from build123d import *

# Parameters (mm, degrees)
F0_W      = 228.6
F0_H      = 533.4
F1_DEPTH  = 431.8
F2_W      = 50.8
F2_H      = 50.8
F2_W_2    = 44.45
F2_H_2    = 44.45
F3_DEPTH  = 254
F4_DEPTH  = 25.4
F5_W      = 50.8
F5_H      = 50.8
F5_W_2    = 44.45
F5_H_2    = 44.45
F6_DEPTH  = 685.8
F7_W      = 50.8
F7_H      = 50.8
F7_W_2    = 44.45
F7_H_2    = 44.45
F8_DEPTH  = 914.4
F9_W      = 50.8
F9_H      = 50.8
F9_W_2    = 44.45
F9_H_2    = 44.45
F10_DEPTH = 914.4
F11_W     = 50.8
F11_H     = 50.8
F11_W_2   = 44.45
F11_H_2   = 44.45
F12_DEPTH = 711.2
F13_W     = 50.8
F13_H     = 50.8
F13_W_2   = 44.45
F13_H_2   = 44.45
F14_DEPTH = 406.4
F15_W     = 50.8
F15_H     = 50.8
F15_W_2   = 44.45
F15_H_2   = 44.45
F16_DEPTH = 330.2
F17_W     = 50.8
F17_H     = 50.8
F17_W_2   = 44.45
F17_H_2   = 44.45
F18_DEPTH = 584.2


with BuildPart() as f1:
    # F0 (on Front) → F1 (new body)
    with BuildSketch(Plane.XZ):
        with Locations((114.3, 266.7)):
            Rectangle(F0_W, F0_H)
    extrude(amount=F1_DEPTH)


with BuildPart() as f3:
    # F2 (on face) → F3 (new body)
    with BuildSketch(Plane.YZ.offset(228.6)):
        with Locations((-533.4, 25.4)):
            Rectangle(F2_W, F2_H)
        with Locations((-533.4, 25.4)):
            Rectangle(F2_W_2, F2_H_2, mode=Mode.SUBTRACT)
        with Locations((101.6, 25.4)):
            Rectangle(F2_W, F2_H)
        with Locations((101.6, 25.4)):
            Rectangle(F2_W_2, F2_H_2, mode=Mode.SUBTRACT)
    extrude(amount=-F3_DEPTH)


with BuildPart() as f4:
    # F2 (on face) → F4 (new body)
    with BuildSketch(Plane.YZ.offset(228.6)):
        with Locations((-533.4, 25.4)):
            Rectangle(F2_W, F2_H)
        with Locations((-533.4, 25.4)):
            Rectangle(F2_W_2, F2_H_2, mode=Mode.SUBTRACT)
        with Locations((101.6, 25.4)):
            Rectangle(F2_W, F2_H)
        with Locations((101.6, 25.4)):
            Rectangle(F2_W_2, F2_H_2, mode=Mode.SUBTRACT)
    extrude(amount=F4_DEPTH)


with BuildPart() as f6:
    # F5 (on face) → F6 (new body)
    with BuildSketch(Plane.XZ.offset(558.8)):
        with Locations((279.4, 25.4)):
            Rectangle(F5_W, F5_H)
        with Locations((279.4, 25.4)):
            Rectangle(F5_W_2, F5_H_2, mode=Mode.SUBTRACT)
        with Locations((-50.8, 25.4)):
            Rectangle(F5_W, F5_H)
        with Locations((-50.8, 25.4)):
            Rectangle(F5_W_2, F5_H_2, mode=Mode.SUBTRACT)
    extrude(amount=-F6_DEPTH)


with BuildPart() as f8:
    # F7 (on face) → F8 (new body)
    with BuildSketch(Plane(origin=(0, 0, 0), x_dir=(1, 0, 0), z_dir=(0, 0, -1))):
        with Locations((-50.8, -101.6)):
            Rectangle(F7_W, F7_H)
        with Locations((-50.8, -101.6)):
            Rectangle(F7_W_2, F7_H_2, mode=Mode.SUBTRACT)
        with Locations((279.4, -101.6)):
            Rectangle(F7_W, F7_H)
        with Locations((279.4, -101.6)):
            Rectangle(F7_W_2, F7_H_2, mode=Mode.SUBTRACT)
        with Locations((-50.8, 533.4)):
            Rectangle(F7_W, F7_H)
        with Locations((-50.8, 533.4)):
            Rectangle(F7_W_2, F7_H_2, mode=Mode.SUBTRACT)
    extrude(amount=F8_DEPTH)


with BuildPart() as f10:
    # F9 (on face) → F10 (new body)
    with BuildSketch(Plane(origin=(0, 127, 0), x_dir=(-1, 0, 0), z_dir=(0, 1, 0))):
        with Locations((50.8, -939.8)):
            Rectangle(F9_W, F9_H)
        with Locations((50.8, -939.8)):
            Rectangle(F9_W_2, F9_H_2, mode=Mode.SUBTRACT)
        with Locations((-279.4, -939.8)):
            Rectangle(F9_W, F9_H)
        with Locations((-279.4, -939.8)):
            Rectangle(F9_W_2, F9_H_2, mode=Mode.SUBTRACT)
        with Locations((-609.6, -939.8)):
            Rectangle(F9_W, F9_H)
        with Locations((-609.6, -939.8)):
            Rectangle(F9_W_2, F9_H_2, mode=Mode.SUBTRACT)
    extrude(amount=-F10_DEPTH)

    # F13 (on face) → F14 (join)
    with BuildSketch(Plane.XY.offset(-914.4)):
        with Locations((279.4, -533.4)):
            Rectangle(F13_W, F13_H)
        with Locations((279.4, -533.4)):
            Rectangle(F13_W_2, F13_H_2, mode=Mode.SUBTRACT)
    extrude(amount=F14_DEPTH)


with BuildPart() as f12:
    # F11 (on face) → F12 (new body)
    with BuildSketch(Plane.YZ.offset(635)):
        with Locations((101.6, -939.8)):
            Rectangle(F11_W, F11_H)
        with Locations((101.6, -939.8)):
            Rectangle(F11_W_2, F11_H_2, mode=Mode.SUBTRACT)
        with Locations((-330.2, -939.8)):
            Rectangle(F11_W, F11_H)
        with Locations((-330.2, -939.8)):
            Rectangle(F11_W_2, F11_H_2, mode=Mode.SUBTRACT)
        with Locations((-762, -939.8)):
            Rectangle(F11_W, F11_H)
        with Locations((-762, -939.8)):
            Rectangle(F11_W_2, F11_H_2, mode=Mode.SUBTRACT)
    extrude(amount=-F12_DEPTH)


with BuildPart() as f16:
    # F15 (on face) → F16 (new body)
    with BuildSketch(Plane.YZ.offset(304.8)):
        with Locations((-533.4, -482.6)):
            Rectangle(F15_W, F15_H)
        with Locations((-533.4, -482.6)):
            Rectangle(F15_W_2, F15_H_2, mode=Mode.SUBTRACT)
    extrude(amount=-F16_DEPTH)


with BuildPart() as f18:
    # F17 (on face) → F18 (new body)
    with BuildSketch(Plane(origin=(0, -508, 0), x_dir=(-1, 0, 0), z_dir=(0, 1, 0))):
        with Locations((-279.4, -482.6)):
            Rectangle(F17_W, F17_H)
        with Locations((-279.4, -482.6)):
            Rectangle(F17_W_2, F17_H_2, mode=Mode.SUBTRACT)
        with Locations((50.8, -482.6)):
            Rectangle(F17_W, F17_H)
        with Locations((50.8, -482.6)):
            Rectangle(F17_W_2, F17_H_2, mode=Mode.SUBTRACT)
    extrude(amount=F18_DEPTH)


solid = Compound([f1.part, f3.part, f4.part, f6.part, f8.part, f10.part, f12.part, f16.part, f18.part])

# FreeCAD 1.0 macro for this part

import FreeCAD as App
import Part
import Sketcher
Q = App.Units.Quantity


def add_polygon(sketch, points):
    """Adds a closed chain of lines whose ends are joined by coincident constraints."""
    first, n = sketch.GeometryCount, len(points)
    for a, b in zip(points, points[1:] + points[:1]):
        sketch.addGeometry(Part.LineSegment(App.Vector(*a, 0), App.Vector(*b, 0)), False)
    for i in range(n):
        sketch.addConstraint(Sketcher.Constraint("Coincident", first + i, 2, first + (i + 1) % n, 1))

doc = App.newDocument("Part")
params = doc.addObject("Spreadsheet::Sheet", "Params")
for row, (alias, value) in enumerate([
    ("sketch1_width", "9 in"),
    ("sketch1_height", "21 in"),
    ("pad1_length", "17 in"),
    ("sketch2_width", "2 in"),
    ("sketch2_width2", "1.75 in"),
    ("pad2_length", "10 in"),
    ("sketch3_width", "2 in"),
    ("sketch3_width2", "1.75 in"),
    ("pad3_length", "1 in"),
    ("sketch4_width", "2 in"),
    ("sketch4_width2", "1.75 in"),
    ("pad4_length", "27 in"),
    ("sketch5_width", "2 in"),
    ("sketch5_width2", "1.75 in"),
    ("pad5_length", "36 in"),
    ("sketch6_width", "2 in"),
    ("sketch6_width2", "1.75 in"),
    ("pad6_length", "36 in"),
    ("sketch7_width", "2 in"),
    ("sketch7_width2", "1.75 in"),
    ("pad7_length", "16 in"),
    ("sketch8_width", "2 in"),
    ("sketch8_width2", "1.75 in"),
    ("pad8_length", "28 in"),
    ("sketch9_width", "2 in"),
    ("sketch9_width2", "1.75 in"),
    ("pad9_length", "13 in"),
    ("sketch10_width", "2 in"),
    ("sketch10_width2", "1.75 in"),
    ("pad10_length", "23 in"),
], start=1):
    params.set(f"A{row}", alias)
    params.set(f"B{row}", "=" + value)
    params.setAlias(f"B{row}", alias)

body = doc.addObject("PartDesign::Body", "Body")

sketch1 = body.newObject("Sketcher::SketchObject", "Sketch")
sketch1.AttachmentSupport = (doc.getObject("XZ_Plane"), [""])
sketch1.MapMode = "FlatFace"
add_polygon(sketch1, [(0, 533), (0, 0), (229, 0), (229, 533)])
sketch1.addConstraint(Sketcher.Constraint("Vertical", 0))
sketch1.addConstraint(Sketcher.Constraint("Horizontal", 1))
sketch1.addConstraint(Sketcher.Constraint("Vertical", 2))
sketch1.addConstraint(Sketcher.Constraint("Horizontal", 3))
sketch1.addConstraint(Sketcher.Constraint("Coincident", 0, 2, -1, 1))
sketch1.addConstraint(Sketcher.Constraint("DistanceX", 1, 1, 1, 2, Q("9 in")))
sketch1.addConstraint(Sketcher.Constraint("DistanceY", 0, 2, 0, 1, Q("21 in")))
sketch1.setExpression("Constraints[9]", "Params.sketch1_width")
sketch1.setExpression("Constraints[10]", "Params.sketch1_height")
pad1 = body.newObject("PartDesign::Pad", "Pad")
pad1.Profile = sketch1
pad1.setExpression("Length", "Params.pad1_length")
body2 = doc.addObject("PartDesign::Body", "Body001")
body2.AllowCompound = True

sketch2 = body2.newObject("Sketcher::SketchObject", "Sketch001")
sketch2.AttachmentSupport = (doc.getObject("YZ_Plane001"), [""])
sketch2.MapMode = "FlatFace"
sketch2.AttachmentOffset = App.Placement(App.Vector(0, 0, 9 * 25.4), App.Rotation())
add_polygon(sketch2, [(-559, 51), (-559, 0), (-508, 0), (-508, 51)])
add_polygon(sketch2, [(-511, 3), (-556, 3), (-556, 48), (-511, 48)])
add_polygon(sketch2, [(76, 51), (76, 0), (127, 0), (127, 51)])
add_polygon(sketch2, [(124, 3), (79, 3), (79, 48), (124, 48)])
sketch2.addConstraint(Sketcher.Constraint("Vertical", 0))
sketch2.addConstraint(Sketcher.Constraint("Horizontal", 1))
sketch2.addConstraint(Sketcher.Constraint("Vertical", 2))
sketch2.addConstraint(Sketcher.Constraint("Horizontal", 3))
sketch2.addConstraint(Sketcher.Constraint("Horizontal", 4))
sketch2.addConstraint(Sketcher.Constraint("Vertical", 5))
sketch2.addConstraint(Sketcher.Constraint("Horizontal", 6))
sketch2.addConstraint(Sketcher.Constraint("Vertical", 7))
sketch2.addConstraint(Sketcher.Constraint("Vertical", 8))
sketch2.addConstraint(Sketcher.Constraint("Horizontal", 9))
sketch2.addConstraint(Sketcher.Constraint("Vertical", 10))
sketch2.addConstraint(Sketcher.Constraint("Horizontal", 11))
sketch2.addConstraint(Sketcher.Constraint("Horizontal", 12))
sketch2.addConstraint(Sketcher.Constraint("Vertical", 13))
sketch2.addConstraint(Sketcher.Constraint("Horizontal", 14))
sketch2.addConstraint(Sketcher.Constraint("Vertical", 15))
sketch2.addConstraint(Sketcher.Constraint("PointOnObject", 0, 2, -1))
sketch2.addConstraint(Sketcher.Constraint("PointOnObject", 8, 2, -1))
sketch2.addConstraint(Sketcher.Constraint("Horizontal", 3, 2, 10, 2))
sketch2.addConstraint(Sketcher.Constraint("Horizontal", 7, 2, 12, 2))
sketch2.addConstraint(Sketcher.Constraint("Horizontal", 6, 2, 13, 2))
sketch2.addConstraint(Sketcher.Constraint("Equal", 3, 9))
sketch2.addConstraint(Sketcher.Constraint("Equal", 6, 12))
sketch2.addConstraint(Sketcher.Constraint("Equal", 11, 0))
sketch2.addConstraint(Sketcher.Constraint("Equal", 14, 5))
sketch2.addConstraint(Sketcher.Constraint("DistanceX", 1, 1, 1, 2, Q("2 in")))
sketch2.addConstraint(Sketcher.Constraint("DistanceX", 0, 2, -1, 1, Q("22 in")))
sketch2.addConstraint(Sketcher.Constraint("DistanceX", -1, 1, 8, 2, Q("3 in")))
sketch2.addConstraint(Sketcher.Constraint("DistanceX", 4, 2, 4, 1, Q("1.75 in")))
sketch2.addConstraint(Sketcher.Constraint("DistanceX", 4, 2, -1, 1, Q("21.875 in")))
sketch2.addConstraint(Sketcher.Constraint("DistanceY", -1, 1, 4, 2, Q("0.125 in")))
sketch2.addConstraint(Sketcher.Constraint("DistanceX", -1, 1, 12, 2, Q("3.125 in")))
sketch2.setExpression("Constraints[41]", "Params.sketch2_width")
sketch2.setExpression("Constraints[44]", "Params.sketch2_width2")
pad2 = body2.newObject("PartDesign::Pad", "Pad001")
pad2.Profile = sketch2
pad2.setExpression("Length", "Params.pad2_length")
pad2.Reversed = True
body3 = doc.addObject("PartDesign::Body", "Body002")
body3.AllowCompound = True

sketch3 = body3.newObject("Sketcher::SketchObject", "Sketch002")
sketch3.AttachmentSupport = (doc.getObject("YZ_Plane002"), [""])
sketch3.MapMode = "FlatFace"
sketch3.AttachmentOffset = App.Placement(App.Vector(0, 0, 9 * 25.4), App.Rotation())
add_polygon(sketch3, [(-559, 51), (-559, 0), (-508, 0), (-508, 51)])
add_polygon(sketch3, [(-511, 3), (-556, 3), (-556, 48), (-511, 48)])
add_polygon(sketch3, [(76, 51), (76, 0), (127, 0), (127, 51)])
add_polygon(sketch3, [(124, 3), (79, 3), (79, 48), (124, 48)])
sketch3.addConstraint(Sketcher.Constraint("Vertical", 0))
sketch3.addConstraint(Sketcher.Constraint("Horizontal", 1))
sketch3.addConstraint(Sketcher.Constraint("Vertical", 2))
sketch3.addConstraint(Sketcher.Constraint("Horizontal", 3))
sketch3.addConstraint(Sketcher.Constraint("Horizontal", 4))
sketch3.addConstraint(Sketcher.Constraint("Vertical", 5))
sketch3.addConstraint(Sketcher.Constraint("Horizontal", 6))
sketch3.addConstraint(Sketcher.Constraint("Vertical", 7))
sketch3.addConstraint(Sketcher.Constraint("Vertical", 8))
sketch3.addConstraint(Sketcher.Constraint("Horizontal", 9))
sketch3.addConstraint(Sketcher.Constraint("Vertical", 10))
sketch3.addConstraint(Sketcher.Constraint("Horizontal", 11))
sketch3.addConstraint(Sketcher.Constraint("Horizontal", 12))
sketch3.addConstraint(Sketcher.Constraint("Vertical", 13))
sketch3.addConstraint(Sketcher.Constraint("Horizontal", 14))
sketch3.addConstraint(Sketcher.Constraint("Vertical", 15))
sketch3.addConstraint(Sketcher.Constraint("PointOnObject", 0, 2, -1))
sketch3.addConstraint(Sketcher.Constraint("PointOnObject", 8, 2, -1))
sketch3.addConstraint(Sketcher.Constraint("Horizontal", 3, 2, 10, 2))
sketch3.addConstraint(Sketcher.Constraint("Horizontal", 7, 2, 12, 2))
sketch3.addConstraint(Sketcher.Constraint("Horizontal", 6, 2, 13, 2))
sketch3.addConstraint(Sketcher.Constraint("Equal", 3, 9))
sketch3.addConstraint(Sketcher.Constraint("Equal", 6, 12))
sketch3.addConstraint(Sketcher.Constraint("Equal", 11, 0))
sketch3.addConstraint(Sketcher.Constraint("Equal", 14, 5))
sketch3.addConstraint(Sketcher.Constraint("DistanceX", 1, 1, 1, 2, Q("2 in")))
sketch3.addConstraint(Sketcher.Constraint("DistanceX", 0, 2, -1, 1, Q("22 in")))
sketch3.addConstraint(Sketcher.Constraint("DistanceX", -1, 1, 8, 2, Q("3 in")))
sketch3.addConstraint(Sketcher.Constraint("DistanceX", 4, 2, 4, 1, Q("1.75 in")))
sketch3.addConstraint(Sketcher.Constraint("DistanceX", 4, 2, -1, 1, Q("21.875 in")))
sketch3.addConstraint(Sketcher.Constraint("DistanceY", -1, 1, 4, 2, Q("0.125 in")))
sketch3.addConstraint(Sketcher.Constraint("DistanceX", -1, 1, 12, 2, Q("3.125 in")))
sketch3.setExpression("Constraints[41]", "Params.sketch3_width")
sketch3.setExpression("Constraints[44]", "Params.sketch3_width2")
pad3 = body3.newObject("PartDesign::Pad", "Pad002")
pad3.Profile = sketch3
pad3.setExpression("Length", "Params.pad3_length")
body4 = doc.addObject("PartDesign::Body", "Body003")
body4.AllowCompound = True

sketch4 = body4.newObject("Sketcher::SketchObject", "Sketch003")
sketch4.AttachmentSupport = (doc.getObject("XZ_Plane003"), [""])
sketch4.MapMode = "FlatFace"
sketch4.AttachmentOffset = App.Placement(App.Vector(0, 0, 22 * 25.4), App.Rotation())
add_polygon(sketch4, [(254, 51), (254, 0), (305, 0), (305, 51)])
add_polygon(sketch4, [(302, 3), (257, 3), (257, 48), (302, 48)])
add_polygon(sketch4, [(-76, 51), (-76, 0), (-25, 0), (-25, 51)])
add_polygon(sketch4, [(-29, 3), (-73, 3), (-73, 48), (-29, 48)])
sketch4.addConstraint(Sketcher.Constraint("Vertical", 0))
sketch4.addConstraint(Sketcher.Constraint("Horizontal", 1))
sketch4.addConstraint(Sketcher.Constraint("Vertical", 2))
sketch4.addConstraint(Sketcher.Constraint("Horizontal", 3))
sketch4.addConstraint(Sketcher.Constraint("Horizontal", 4))
sketch4.addConstraint(Sketcher.Constraint("Vertical", 5))
sketch4.addConstraint(Sketcher.Constraint("Horizontal", 6))
sketch4.addConstraint(Sketcher.Constraint("Vertical", 7))
sketch4.addConstraint(Sketcher.Constraint("Vertical", 8))
sketch4.addConstraint(Sketcher.Constraint("Horizontal", 9))
sketch4.addConstraint(Sketcher.Constraint("Vertical", 10))
sketch4.addConstraint(Sketcher.Constraint("Horizontal", 11))
sketch4.addConstraint(Sketcher.Constraint("Horizontal", 12))
sketch4.addConstraint(Sketcher.Constraint("Vertical", 13))
sketch4.addConstraint(Sketcher.Constraint("Horizontal", 14))
sketch4.addConstraint(Sketcher.Constraint("Vertical", 15))
sketch4.addConstraint(Sketcher.Constraint("PointOnObject", 0, 2, -1))
sketch4.addConstraint(Sketcher.Constraint("PointOnObject", 8, 2, -1))
sketch4.addConstraint(Sketcher.Constraint("Horizontal", 3, 2, 10, 2))
sketch4.addConstraint(Sketcher.Constraint("Horizontal", 7, 2, 12, 2))
sketch4.addConstraint(Sketcher.Constraint("Horizontal", 6, 2, 13, 2))
sketch4.addConstraint(Sketcher.Constraint("Equal", 3, 9))
sketch4.addConstraint(Sketcher.Constraint("Equal", 6, 12))
sketch4.addConstraint(Sketcher.Constraint("Equal", 11, 0))
sketch4.addConstraint(Sketcher.Constraint("Equal", 14, 5))
sketch4.addConstraint(Sketcher.Constraint("DistanceX", 1, 1, 1, 2, Q("2 in")))
sketch4.addConstraint(Sketcher.Constraint("DistanceX", -1, 1, 0, 2, Q("10 in")))
sketch4.addConstraint(Sketcher.Constraint("DistanceX", 8, 2, -1, 1, Q("3 in")))
sketch4.addConstraint(Sketcher.Constraint("DistanceX", 4, 2, 4, 1, Q("1.75 in")))
sketch4.addConstraint(Sketcher.Constraint("DistanceX", -1, 1, 4, 2, Q("10.125 in")))
sketch4.addConstraint(Sketcher.Constraint("DistanceY", -1, 1, 4, 2, Q("0.125 in")))
sketch4.addConstraint(Sketcher.Constraint("DistanceX", 12, 2, -1, 1, Q("2.875 in")))
sketch4.setExpression("Constraints[41]", "Params.sketch4_width")
sketch4.setExpression("Constraints[44]", "Params.sketch4_width2")
pad4 = body4.newObject("PartDesign::Pad", "Pad003")
pad4.Profile = sketch4
pad4.setExpression("Length", "Params.pad4_length")
pad4.Reversed = True
body5 = doc.addObject("PartDesign::Body", "Body004")
body5.AllowCompound = True

sketch5 = body5.newObject("Sketcher::SketchObject", "Sketch004")
sketch5.AttachmentSupport = (doc.getObject("XY_Plane004"), [""])
sketch5.MapMode = "FlatFace"
add_polygon(sketch5, [(-76, 76), (-76, 127), (-25, 127), (-25, 76)])
add_polygon(sketch5, [(-29, 124), (-73, 124), (-73, 79), (-29, 79)])
add_polygon(sketch5, [(254, 76), (254, 127), (305, 127), (305, 76)])
add_polygon(sketch5, [(302, 124), (257, 124), (257, 79), (302, 79)])
add_polygon(sketch5, [(-76, -559), (-76, -508), (-25, -508), (-25, -559)])
add_polygon(sketch5, [(-29, -511), (-73, -511), (-73, -556), (-29, -556)])
sketch5.addConstraint(Sketcher.Constraint("Vertical", 0))
sketch5.addConstraint(Sketcher.Constraint("Horizontal", 1))
sketch5.addConstraint(Sketcher.Constraint("Vertical", 2))
sketch5.addConstraint(Sketcher.Constraint("Horizontal", 3))
sketch5.addConstraint(Sketcher.Constraint("Horizontal", 4))
sketch5.addConstraint(Sketcher.Constraint("Vertical", 5))
sketch5.addConstraint(Sketcher.Constraint("Horizontal", 6))
sketch5.addConstraint(Sketcher.Constraint("Vertical", 7))
sketch5.addConstraint(Sketcher.Constraint("Vertical", 8))
sketch5.addConstraint(Sketcher.Constraint("Horizontal", 9))
sketch5.addConstraint(Sketcher.Constraint("Vertical", 10))
sketch5.addConstraint(Sketcher.Constraint("Horizontal", 11))
sketch5.addConstraint(Sketcher.Constraint("Horizontal", 12))
sketch5.addConstraint(Sketcher.Constraint("Vertical", 13))
sketch5.addConstraint(Sketcher.Constraint("Horizontal", 14))
sketch5.addConstraint(Sketcher.Constraint("Vertical", 15))
sketch5.addConstraint(Sketcher.Constraint("Vertical", 16))
sketch5.addConstraint(Sketcher.Constraint("Horizontal", 17))
sketch5.addConstraint(Sketcher.Constraint("Vertical", 18))
sketch5.addConstraint(Sketcher.Constraint("Horizontal", 19))
sketch5.addConstraint(Sketcher.Constraint("Horizontal", 20))
sketch5.addConstraint(Sketcher.Constraint("Vertical", 21))
sketch5.addConstraint(Sketcher.Constraint("Horizontal", 22))
sketch5.addConstraint(Sketcher.Constraint("Vertical", 23))
sketch5.addConstraint(Sketcher.Constraint("Horizontal", 1, 2, 8, 2))
sketch5.addConstraint(Sketcher.Constraint("Horizontal", 3, 2, 10, 2))
sketch5.addConstraint(Sketcher.Constraint("Horizontal", 7, 2, 12, 2))
sketch5.addConstraint(Sketcher.Constraint("Horizontal", 6, 2, 13, 2))
sketch5.addConstraint(Sketcher.Constraint("Vertical", 3, 2, 16, 2))
sketch5.addConstraint(Sketcher.Constraint("Vertical", 2, 2, 17, 2))
sketch5.addConstraint(Sketcher.Constraint("Vertical", 5, 2, 20, 2))
sketch5.addConstraint(Sketcher.Constraint("Vertical", 7, 2, 22, 2))
sketch5.addConstraint(Sketcher.Constraint("Equal", 3, 9))
sketch5.addConstraint(Sketcher.Constraint("Equal", 6, 12))
sketch5.addConstraint(Sketcher.Constraint("Equal", 19, 0))
sketch5.addConstraint(Sketcher.Constraint("Equal", 22, 5))
sketch5.addConstraint(Sketcher.Constraint("Equal", 10, 16))
sketch5.addConstraint(Sketcher.Constraint("Equal", 15, 21))
sketch5.addConstraint(Sketcher.Constraint("DistanceX", 1, 1, 1, 2, Q("2 in")))
sketch5.addConstraint(Sketcher.Constraint("DistanceX", 0, 2, -1, 1, Q("3 in")))
sketch5.addConstraint(Sketcher.Constraint("DistanceY", -1, 1, 0, 2, Q("5 in")))
sketch5.addConstraint(Sketcher.Constraint("DistanceX", -1, 1, 8, 2, Q("10 in")))
sketch5.addConstraint(Sketcher.Constraint("DistanceY", 16, 2, -1, 1, Q("20 in")))
sketch5.addConstraint(Sketcher.Constraint("DistanceX", 4, 2, 4, 1, Q("1.75 in")))
sketch5.addConstraint(Sketcher.Constraint("DistanceX", 4, 2, -1, 1, Q("2.875 in")))
sketch5.addConstraint(Sketcher.Constraint("DistanceY", -1, 1, 4, 2, Q("4.875 in")))
sketch5.addConstraint(Sketcher.Constraint("DistanceX", -1, 1, 12, 2, Q("10.125 in")))
sketch5.addConstraint(Sketcher.Constraint("DistanceY", 20, 2, -1, 1, Q("20.125 in")))
sketch5.setExpression("Constraints[62]", "Params.sketch5_width")
sketch5.setExpression("Constraints[67]", "Params.sketch5_width2")
pad5 = body5.newObject("PartDesign::Pad", "Pad004")
pad5.Profile = sketch5
pad5.setExpression("Length", "Params.pad5_length")
pad5.Reversed = True
body6 = doc.addObject("PartDesign::Body", "Body005")
body6.AllowCompound = True

sketch6 = body6.newObject("Sketcher::SketchObject", "Sketch005")
sketch6.AttachmentSupport = (doc.getObject("XZ_Plane005"), [""])
sketch6.MapMode = "FlatFace"
sketch6.AttachmentOffset = App.Placement(App.Vector(0, 0, -5 * 25.4), App.Rotation())
add_polygon(sketch6, [(-25, -914), (-25, -965), (-76, -965), (-76, -914)])
add_polygon(sketch6, [(-73, -962), (-29, -962), (-29, -918), (-73, -918)])
add_polygon(sketch6, [(305, -914), (305, -965), (254, -965), (254, -914)])
add_polygon(sketch6, [(257, -962), (302, -962), (302, -918), (257, -918)])
add_polygon(sketch6, [(635, -914), (635, -965), (584, -965), (584, -914)])
add_polygon(sketch6, [(587, -962), (632, -962), (632, -918), (587, -918)])
sketch6.addConstraint(Sketcher.Constraint("Vertical", 0))
sketch6.addConstraint(Sketcher.Constraint("Horizontal", 1))
sketch6.addConstraint(Sketcher.Constraint("Vertical", 2))
sketch6.addConstraint(Sketcher.Constraint("Horizontal", 3))
sketch6.addConstraint(Sketcher.Constraint("Horizontal", 4))
sketch6.addConstraint(Sketcher.Constraint("Vertical", 5))
sketch6.addConstraint(Sketcher.Constraint("Horizontal", 6))
sketch6.addConstraint(Sketcher.Constraint("Vertical", 7))
sketch6.addConstraint(Sketcher.Constraint("Vertical", 8))
sketch6.addConstraint(Sketcher.Constraint("Horizontal", 9))
sketch6.addConstraint(Sketcher.Constraint("Vertical", 10))
sketch6.addConstraint(Sketcher.Constraint("Horizontal", 11))
sketch6.addConstraint(Sketcher.Constraint("Horizontal", 12))
sketch6.addConstraint(Sketcher.Constraint("Vertical", 13))
sketch6.addConstraint(Sketcher.Constraint("Horizontal", 14))
sketch6.addConstraint(Sketcher.Constraint("Vertical", 15))
sketch6.addConstraint(Sketcher.Constraint("Vertical", 16))
sketch6.addConstraint(Sketcher.Constraint("Horizontal", 17))
sketch6.addConstraint(Sketcher.Constraint("Vertical", 18))
sketch6.addConstraint(Sketcher.Constraint("Horizontal", 19))
sketch6.addConstraint(Sketcher.Constraint("Horizontal", 20))
sketch6.addConstraint(Sketcher.Constraint("Vertical", 21))
sketch6.addConstraint(Sketcher.Constraint("Horizontal", 22))
sketch6.addConstraint(Sketcher.Constraint("Vertical", 23))
sketch6.addConstraint(Sketcher.Constraint("Horizontal", 1, 2, 8, 2))
sketch6.addConstraint(Sketcher.Constraint("Horizontal", 3, 2, 10, 2))
sketch6.addConstraint(Sketcher.Constraint("Horizontal", 7, 2, 12, 2))
sketch6.addConstraint(Sketcher.Constraint("Horizontal", 6, 2, 13, 2))
sketch6.addConstraint(Sketcher.Constraint("Horizontal", 9, 2, 16, 2))
sketch6.addConstraint(Sketcher.Constraint("Horizontal", 11, 2, 18, 2))
sketch6.addConstraint(Sketcher.Constraint("Horizontal", 15, 2, 20, 2))
sketch6.addConstraint(Sketcher.Constraint("Horizontal", 14, 2, 21, 2))
sketch6.addConstraint(Sketcher.Constraint("Equal", 3, 9))
sketch6.addConstraint(Sketcher.Constraint("Equal", 6, 12))
sketch6.addConstraint(Sketcher.Constraint("Equal", 11, 17))
sketch6.addConstraint(Sketcher.Constraint("Equal", 14, 20))
sketch6.addConstraint(Sketcher.Constraint("Equal", 19, 0))
sketch6.addConstraint(Sketcher.Constraint("Equal", 22, 5))
sketch6.addConstraint(Sketcher.Constraint("DistanceX", 1, 2, 1, 1, Q("2 in")))
sketch6.addConstraint(Sketcher.Constraint("DistanceX", 0, 2, -1, 1, Q("1 in")))
sketch6.addConstraint(Sketcher.Constraint("DistanceY", 0, 2, -1, 1, Q("38 in")))
sketch6.addConstraint(Sketcher.Constraint("DistanceX", -1, 1, 8, 2, Q("12 in")))
sketch6.addConstraint(Sketcher.Constraint("DistanceX", -1, 1, 16, 2, Q("25 in")))
sketch6.addConstraint(Sketcher.Constraint("DistanceX", 4, 1, 4, 2, Q("1.75 in")))
sketch6.addConstraint(Sketcher.Constraint("DistanceX", 4, 2, -1, 1, Q("1.125 in")))
sketch6.addConstraint(Sketcher.Constraint("DistanceY", 4, 2, -1, 1, Q("37.875 in")))
sketch6.addConstraint(Sketcher.Constraint("DistanceX", -1, 1, 12, 2, Q("11.875 in")))
sketch6.addConstraint(Sketcher.Constraint("DistanceX", -1, 1, 20, 2, Q("24.875 in")))
sketch6.setExpression("Constraints[62]", "Params.sketch6_width")
sketch6.setExpression("Constraints[67]", "Params.sketch6_width2")
pad6 = body6.newObject("PartDesign::Pad", "Pad005")
pad6.Profile = sketch6
pad6.setExpression("Length", "Params.pad6_length")

sketch7 = body6.newObject("Sketcher::SketchObject", "Sketch006")
sketch7.AttachmentSupport = (doc.getObject("XY_Plane005"), [""])
sketch7.MapMode = "FlatFace"
sketch7.AttachmentOffset = App.Placement(App.Vector(0, 0, -36 * 25.4), App.Rotation())
add_polygon(sketch7, [(254, -508), (254, -559), (305, -559), (305, -508)])
add_polygon(sketch7, [(302, -556), (257, -556), (257, -511), (302, -511)])
sketch7.addConstraint(Sketcher.Constraint("Vertical", 0))
sketch7.addConstraint(Sketcher.Constraint("Horizontal", 1))
sketch7.addConstraint(Sketcher.Constraint("Vertical", 2))
sketch7.addConstraint(Sketcher.Constraint("Horizontal", 3))
sketch7.addConstraint(Sketcher.Constraint("Horizontal", 4))
sketch7.addConstraint(Sketcher.Constraint("Vertical", 5))
sketch7.addConstraint(Sketcher.Constraint("Horizontal", 6))
sketch7.addConstraint(Sketcher.Constraint("Vertical", 7))
sketch7.addConstraint(Sketcher.Constraint("Equal", 3, 0))
sketch7.addConstraint(Sketcher.Constraint("Equal", 6, 5))
sketch7.addConstraint(Sketcher.Constraint("DistanceX", 1, 1, 1, 2, Q("2 in")))
sketch7.addConstraint(Sketcher.Constraint("DistanceX", -1, 1, 0, 2, Q("10 in")))
sketch7.addConstraint(Sketcher.Constraint("DistanceY", 0, 2, -1, 1, Q("22 in")))
sketch7.addConstraint(Sketcher.Constraint("DistanceX", 4, 2, 4, 1, Q("1.75 in")))
sketch7.addConstraint(Sketcher.Constraint("DistanceX", -1, 1, 4, 2, Q("10.125 in")))
sketch7.addConstraint(Sketcher.Constraint("DistanceY", 4, 2, -1, 1, Q("21.875 in")))
sketch7.setExpression("Constraints[18]", "Params.sketch7_width")
sketch7.setExpression("Constraints[21]", "Params.sketch7_width2")
pad7 = body6.newObject("PartDesign::Pad", "Pad006")
pad7.Profile = sketch7
pad7.setExpression("Length", "Params.pad7_length")
body7 = doc.addObject("PartDesign::Body", "Body006")
body7.AllowCompound = True

sketch8 = body7.newObject("Sketcher::SketchObject", "Sketch007")
sketch8.AttachmentSupport = (doc.getObject("YZ_Plane006"), [""])
sketch8.MapMode = "FlatFace"
sketch8.AttachmentOffset = App.Placement(App.Vector(0, 0, 25 * 25.4), App.Rotation())
add_polygon(sketch8, [(76, -914), (76, -965), (127, -965), (127, -914)])
add_polygon(sketch8, [(124, -962), (79, -962), (79, -918), (124, -918)])
add_polygon(sketch8, [(-356, -914), (-356, -965), (-305, -965), (-305, -914)])
add_polygon(sketch8, [(-308, -962), (-352, -962), (-352, -918), (-308, -918)])
add_polygon(sketch8, [(-787, -914), (-787, -965), (-737, -965), (-737, -914)])
add_polygon(sketch8, [(-740, -962), (-784, -962), (-784, -918), (-740, -918)])
sketch8.addConstraint(Sketcher.Constraint("Vertical", 0))
sketch8.addConstraint(Sketcher.Constraint("Horizontal", 1))
sketch8.addConstraint(Sketcher.Constraint("Vertical", 2))
sketch8.addConstraint(Sketcher.Constraint("Horizontal", 3))
sketch8.addConstraint(Sketcher.Constraint("Horizontal", 4))
sketch8.addConstraint(Sketcher.Constraint("Vertical", 5))
sketch8.addConstraint(Sketcher.Constraint("Horizontal", 6))
sketch8.addConstraint(Sketcher.Constraint("Vertical", 7))
sketch8.addConstraint(Sketcher.Constraint("Vertical", 8))
sketch8.addConstraint(Sketcher.Constraint("Horizontal", 9))
sketch8.addConstraint(Sketcher.Constraint("Vertical", 10))
sketch8.addConstraint(Sketcher.Constraint("Horizontal", 11))
sketch8.addConstraint(Sketcher.Constraint("Horizontal", 12))
sketch8.addConstraint(Sketcher.Constraint("Vertical", 13))
sketch8.addConstraint(Sketcher.Constraint("Horizontal", 14))
sketch8.addConstraint(Sketcher.Constraint("Vertical", 15))
sketch8.addConstraint(Sketcher.Constraint("Vertical", 16))
sketch8.addConstraint(Sketcher.Constraint("Horizontal", 17))
sketch8.addConstraint(Sketcher.Constraint("Vertical", 18))
sketch8.addConstraint(Sketcher.Constraint("Horizontal", 19))
sketch8.addConstraint(Sketcher.Constraint("Horizontal", 20))
sketch8.addConstraint(Sketcher.Constraint("Vertical", 21))
sketch8.addConstraint(Sketcher.Constraint("Horizontal", 22))
sketch8.addConstraint(Sketcher.Constraint("Vertical", 23))
sketch8.addConstraint(Sketcher.Constraint("Horizontal", 1, 2, 8, 2))
sketch8.addConstraint(Sketcher.Constraint("Horizontal", 3, 2, 10, 2))
sketch8.addConstraint(Sketcher.Constraint("Horizontal", 7, 2, 12, 2))
sketch8.addConstraint(Sketcher.Constraint("Horizontal", 6, 2, 13, 2))
sketch8.addConstraint(Sketcher.Constraint("Horizontal", 9, 2, 16, 2))
sketch8.addConstraint(Sketcher.Constraint("Horizontal", 11, 2, 18, 2))
sketch8.addConstraint(Sketcher.Constraint("Horizontal", 15, 2, 20, 2))
sketch8.addConstraint(Sketcher.Constraint("Horizontal", 14, 2, 21, 2))
sketch8.addConstraint(Sketcher.Constraint("Equal", 3, 9))
sketch8.addConstraint(Sketcher.Constraint("Equal", 6, 12))
sketch8.addConstraint(Sketcher.Constraint("Equal", 11, 17))
sketch8.addConstraint(Sketcher.Constraint("Equal", 14, 20))
sketch8.addConstraint(Sketcher.Constraint("Equal", 19, 0))
sketch8.addConstraint(Sketcher.Constraint("Equal", 22, 5))
sketch8.addConstraint(Sketcher.Constraint("DistanceX", 1, 1, 1, 2, Q("2 in")))
sketch8.addConstraint(Sketcher.Constraint("DistanceX", -1, 1, 0, 2, Q("3 in")))
sketch8.addConstraint(Sketcher.Constraint("DistanceY", 0, 2, -1, 1, Q("38 in")))
sketch8.addConstraint(Sketcher.Constraint("DistanceX", 8, 2, -1, 1, Q("14 in")))
sketch8.addConstraint(Sketcher.Constraint("DistanceX", 16, 2, -1, 1, Q("31 in")))
sketch8.addConstraint(Sketcher.Constraint("DistanceX", 4, 2, 4, 1, Q("1.75 in")))
sketch8.addConstraint(Sketcher.Constraint("DistanceX", -1, 1, 4, 2, Q("3.125 in")))
sketch8.addConstraint(Sketcher.Constraint("DistanceY", 4, 2, -1, 1, Q("37.875 in")))
sketch8.addConstraint(Sketcher.Constraint("DistanceX", 12, 2, -1, 1, Q("13.875 in")))
sketch8.addConstraint(Sketcher.Constraint("DistanceX", 20, 2, -1, 1, Q("30.875 in")))
sketch8.setExpression("Constraints[62]", "Params.sketch8_width")
sketch8.setExpression("Constraints[67]", "Params.sketch8_width2")
pad8 = body7.newObject("PartDesign::Pad", "Pad007")
pad8.Profile = sketch8
pad8.setExpression("Length", "Params.pad8_length")
pad8.Reversed = True
body8 = doc.addObject("PartDesign::Body", "Body007")

sketch9 = body8.newObject("Sketcher::SketchObject", "Sketch008")
sketch9.AttachmentSupport = (doc.getObject("YZ_Plane007"), [""])
sketch9.MapMode = "FlatFace"
sketch9.AttachmentOffset = App.Placement(App.Vector(0, 0, 12 * 25.4), App.Rotation())
add_polygon(sketch9, [(-559, -457), (-559, -508), (-508, -508), (-508, -457)])
add_polygon(sketch9, [(-511, -505), (-556, -505), (-556, -460), (-511, -460)])
sketch9.addConstraint(Sketcher.Constraint("Vertical", 0))
sketch9.addConstraint(Sketcher.Constraint("Horizontal", 1))
sketch9.addConstraint(Sketcher.Constraint("Vertical", 2))
sketch9.addConstraint(Sketcher.Constraint("Horizontal", 3))
sketch9.addConstraint(Sketcher.Constraint("Horizontal", 4))
sketch9.addConstraint(Sketcher.Constraint("Vertical", 5))
sketch9.addConstraint(Sketcher.Constraint("Horizontal", 6))
sketch9.addConstraint(Sketcher.Constraint("Vertical", 7))
sketch9.addConstraint(Sketcher.Constraint("Equal", 3, 0))
sketch9.addConstraint(Sketcher.Constraint("Equal", 6, 5))
sketch9.addConstraint(Sketcher.Constraint("DistanceX", 1, 1, 1, 2, Q("2 in")))
sketch9.addConstraint(Sketcher.Constraint("DistanceX", 0, 2, -1, 1, Q("22 in")))
sketch9.addConstraint(Sketcher.Constraint("DistanceY", 0, 2, -1, 1, Q("20 in")))
sketch9.addConstraint(Sketcher.Constraint("DistanceX", 4, 2, 4, 1, Q("1.75 in")))
sketch9.addConstraint(Sketcher.Constraint("DistanceX", 4, 2, -1, 1, Q("21.875 in")))
sketch9.addConstraint(Sketcher.Constraint("DistanceY", 4, 2, -1, 1, Q("19.875 in")))
sketch9.setExpression("Constraints[18]", "Params.sketch9_width")
sketch9.setExpression("Constraints[21]", "Params.sketch9_width2")
pad9 = body8.newObject("PartDesign::Pad", "Pad008")
pad9.Profile = sketch9
pad9.setExpression("Length", "Params.pad9_length")
pad9.Reversed = True
body9 = doc.addObject("PartDesign::Body", "Body008")
body9.AllowCompound = True

sketch10 = body9.newObject("Sketcher::SketchObject", "Sketch009")
sketch10.AttachmentSupport = (doc.getObject("XZ_Plane008"), [""])
sketch10.MapMode = "FlatFace"
sketch10.AttachmentOffset = App.Placement(App.Vector(0, 0, 20 * 25.4), App.Rotation())
add_polygon(sketch10, [(305, -457), (305, -508), (254, -508), (254, -457)])
add_polygon(sketch10, [(257, -505), (302, -505), (302, -460), (257, -460)])
add_polygon(sketch10, [(-25, -457), (-25, -508), (-76, -508), (-76, -457)])
add_polygon(sketch10, [(-73, -505), (-29, -505), (-29, -460), (-73, -460)])
sketch10.addConstraint(Sketcher.Constraint("Vertical", 0))
sketch10.addConstraint(Sketcher.Constraint("Horizontal", 1))
sketch10.addConstraint(Sketcher.Constraint("Vertical", 2))
sketch10.addConstraint(Sketcher.Constraint("Horizontal", 3))
sketch10.addConstraint(Sketcher.Constraint("Horizontal", 4))
sketch10.addConstraint(Sketcher.Constraint("Vertical", 5))
sketch10.addConstraint(Sketcher.Constraint("Horizontal", 6))
sketch10.addConstraint(Sketcher.Constraint("Vertical", 7))
sketch10.addConstraint(Sketcher.Constraint("Vertical", 8))
sketch10.addConstraint(Sketcher.Constraint("Horizontal", 9))
sketch10.addConstraint(Sketcher.Constraint("Vertical", 10))
sketch10.addConstraint(Sketcher.Constraint("Horizontal", 11))
sketch10.addConstraint(Sketcher.Constraint("Horizontal", 12))
sketch10.addConstraint(Sketcher.Constraint("Vertical", 13))
sketch10.addConstraint(Sketcher.Constraint("Horizontal", 14))
sketch10.addConstraint(Sketcher.Constraint("Vertical", 15))
sketch10.addConstraint(Sketcher.Constraint("Horizontal", 1, 2, 8, 2))
sketch10.addConstraint(Sketcher.Constraint("Horizontal", 3, 2, 10, 2))
sketch10.addConstraint(Sketcher.Constraint("Horizontal", 7, 2, 12, 2))
sketch10.addConstraint(Sketcher.Constraint("Horizontal", 6, 2, 13, 2))
sketch10.addConstraint(Sketcher.Constraint("Equal", 3, 9))
sketch10.addConstraint(Sketcher.Constraint("Equal", 6, 12))
sketch10.addConstraint(Sketcher.Constraint("Equal", 11, 0))
sketch10.addConstraint(Sketcher.Constraint("Equal", 14, 5))
sketch10.addConstraint(Sketcher.Constraint("DistanceX", 1, 2, 1, 1, Q("2 in")))
sketch10.addConstraint(Sketcher.Constraint("DistanceX", -1, 1, 0, 2, Q("12 in")))
sketch10.addConstraint(Sketcher.Constraint("DistanceY", 0, 2, -1, 1, Q("20 in")))
sketch10.addConstraint(Sketcher.Constraint("DistanceX", 8, 2, -1, 1, Q("1 in")))
sketch10.addConstraint(Sketcher.Constraint("DistanceX", 4, 1, 4, 2, Q("1.75 in")))
sketch10.addConstraint(Sketcher.Constraint("DistanceX", -1, 1, 4, 2, Q("11.875 in")))
sketch10.addConstraint(Sketcher.Constraint("DistanceY", 4, 2, -1, 1, Q("19.875 in")))
sketch10.addConstraint(Sketcher.Constraint("DistanceX", 12, 2, -1, 1, Q("1.125 in")))
sketch10.setExpression("Constraints[40]", "Params.sketch10_width")
sketch10.setExpression("Constraints[44]", "Params.sketch10_width2")
pad10 = body9.newObject("PartDesign::Pad", "Pad009")
pad10.Profile = sketch10
pad10.setExpression("Length", "Params.pad10_length")
pad10.Reversed = True

doc.recompute()
